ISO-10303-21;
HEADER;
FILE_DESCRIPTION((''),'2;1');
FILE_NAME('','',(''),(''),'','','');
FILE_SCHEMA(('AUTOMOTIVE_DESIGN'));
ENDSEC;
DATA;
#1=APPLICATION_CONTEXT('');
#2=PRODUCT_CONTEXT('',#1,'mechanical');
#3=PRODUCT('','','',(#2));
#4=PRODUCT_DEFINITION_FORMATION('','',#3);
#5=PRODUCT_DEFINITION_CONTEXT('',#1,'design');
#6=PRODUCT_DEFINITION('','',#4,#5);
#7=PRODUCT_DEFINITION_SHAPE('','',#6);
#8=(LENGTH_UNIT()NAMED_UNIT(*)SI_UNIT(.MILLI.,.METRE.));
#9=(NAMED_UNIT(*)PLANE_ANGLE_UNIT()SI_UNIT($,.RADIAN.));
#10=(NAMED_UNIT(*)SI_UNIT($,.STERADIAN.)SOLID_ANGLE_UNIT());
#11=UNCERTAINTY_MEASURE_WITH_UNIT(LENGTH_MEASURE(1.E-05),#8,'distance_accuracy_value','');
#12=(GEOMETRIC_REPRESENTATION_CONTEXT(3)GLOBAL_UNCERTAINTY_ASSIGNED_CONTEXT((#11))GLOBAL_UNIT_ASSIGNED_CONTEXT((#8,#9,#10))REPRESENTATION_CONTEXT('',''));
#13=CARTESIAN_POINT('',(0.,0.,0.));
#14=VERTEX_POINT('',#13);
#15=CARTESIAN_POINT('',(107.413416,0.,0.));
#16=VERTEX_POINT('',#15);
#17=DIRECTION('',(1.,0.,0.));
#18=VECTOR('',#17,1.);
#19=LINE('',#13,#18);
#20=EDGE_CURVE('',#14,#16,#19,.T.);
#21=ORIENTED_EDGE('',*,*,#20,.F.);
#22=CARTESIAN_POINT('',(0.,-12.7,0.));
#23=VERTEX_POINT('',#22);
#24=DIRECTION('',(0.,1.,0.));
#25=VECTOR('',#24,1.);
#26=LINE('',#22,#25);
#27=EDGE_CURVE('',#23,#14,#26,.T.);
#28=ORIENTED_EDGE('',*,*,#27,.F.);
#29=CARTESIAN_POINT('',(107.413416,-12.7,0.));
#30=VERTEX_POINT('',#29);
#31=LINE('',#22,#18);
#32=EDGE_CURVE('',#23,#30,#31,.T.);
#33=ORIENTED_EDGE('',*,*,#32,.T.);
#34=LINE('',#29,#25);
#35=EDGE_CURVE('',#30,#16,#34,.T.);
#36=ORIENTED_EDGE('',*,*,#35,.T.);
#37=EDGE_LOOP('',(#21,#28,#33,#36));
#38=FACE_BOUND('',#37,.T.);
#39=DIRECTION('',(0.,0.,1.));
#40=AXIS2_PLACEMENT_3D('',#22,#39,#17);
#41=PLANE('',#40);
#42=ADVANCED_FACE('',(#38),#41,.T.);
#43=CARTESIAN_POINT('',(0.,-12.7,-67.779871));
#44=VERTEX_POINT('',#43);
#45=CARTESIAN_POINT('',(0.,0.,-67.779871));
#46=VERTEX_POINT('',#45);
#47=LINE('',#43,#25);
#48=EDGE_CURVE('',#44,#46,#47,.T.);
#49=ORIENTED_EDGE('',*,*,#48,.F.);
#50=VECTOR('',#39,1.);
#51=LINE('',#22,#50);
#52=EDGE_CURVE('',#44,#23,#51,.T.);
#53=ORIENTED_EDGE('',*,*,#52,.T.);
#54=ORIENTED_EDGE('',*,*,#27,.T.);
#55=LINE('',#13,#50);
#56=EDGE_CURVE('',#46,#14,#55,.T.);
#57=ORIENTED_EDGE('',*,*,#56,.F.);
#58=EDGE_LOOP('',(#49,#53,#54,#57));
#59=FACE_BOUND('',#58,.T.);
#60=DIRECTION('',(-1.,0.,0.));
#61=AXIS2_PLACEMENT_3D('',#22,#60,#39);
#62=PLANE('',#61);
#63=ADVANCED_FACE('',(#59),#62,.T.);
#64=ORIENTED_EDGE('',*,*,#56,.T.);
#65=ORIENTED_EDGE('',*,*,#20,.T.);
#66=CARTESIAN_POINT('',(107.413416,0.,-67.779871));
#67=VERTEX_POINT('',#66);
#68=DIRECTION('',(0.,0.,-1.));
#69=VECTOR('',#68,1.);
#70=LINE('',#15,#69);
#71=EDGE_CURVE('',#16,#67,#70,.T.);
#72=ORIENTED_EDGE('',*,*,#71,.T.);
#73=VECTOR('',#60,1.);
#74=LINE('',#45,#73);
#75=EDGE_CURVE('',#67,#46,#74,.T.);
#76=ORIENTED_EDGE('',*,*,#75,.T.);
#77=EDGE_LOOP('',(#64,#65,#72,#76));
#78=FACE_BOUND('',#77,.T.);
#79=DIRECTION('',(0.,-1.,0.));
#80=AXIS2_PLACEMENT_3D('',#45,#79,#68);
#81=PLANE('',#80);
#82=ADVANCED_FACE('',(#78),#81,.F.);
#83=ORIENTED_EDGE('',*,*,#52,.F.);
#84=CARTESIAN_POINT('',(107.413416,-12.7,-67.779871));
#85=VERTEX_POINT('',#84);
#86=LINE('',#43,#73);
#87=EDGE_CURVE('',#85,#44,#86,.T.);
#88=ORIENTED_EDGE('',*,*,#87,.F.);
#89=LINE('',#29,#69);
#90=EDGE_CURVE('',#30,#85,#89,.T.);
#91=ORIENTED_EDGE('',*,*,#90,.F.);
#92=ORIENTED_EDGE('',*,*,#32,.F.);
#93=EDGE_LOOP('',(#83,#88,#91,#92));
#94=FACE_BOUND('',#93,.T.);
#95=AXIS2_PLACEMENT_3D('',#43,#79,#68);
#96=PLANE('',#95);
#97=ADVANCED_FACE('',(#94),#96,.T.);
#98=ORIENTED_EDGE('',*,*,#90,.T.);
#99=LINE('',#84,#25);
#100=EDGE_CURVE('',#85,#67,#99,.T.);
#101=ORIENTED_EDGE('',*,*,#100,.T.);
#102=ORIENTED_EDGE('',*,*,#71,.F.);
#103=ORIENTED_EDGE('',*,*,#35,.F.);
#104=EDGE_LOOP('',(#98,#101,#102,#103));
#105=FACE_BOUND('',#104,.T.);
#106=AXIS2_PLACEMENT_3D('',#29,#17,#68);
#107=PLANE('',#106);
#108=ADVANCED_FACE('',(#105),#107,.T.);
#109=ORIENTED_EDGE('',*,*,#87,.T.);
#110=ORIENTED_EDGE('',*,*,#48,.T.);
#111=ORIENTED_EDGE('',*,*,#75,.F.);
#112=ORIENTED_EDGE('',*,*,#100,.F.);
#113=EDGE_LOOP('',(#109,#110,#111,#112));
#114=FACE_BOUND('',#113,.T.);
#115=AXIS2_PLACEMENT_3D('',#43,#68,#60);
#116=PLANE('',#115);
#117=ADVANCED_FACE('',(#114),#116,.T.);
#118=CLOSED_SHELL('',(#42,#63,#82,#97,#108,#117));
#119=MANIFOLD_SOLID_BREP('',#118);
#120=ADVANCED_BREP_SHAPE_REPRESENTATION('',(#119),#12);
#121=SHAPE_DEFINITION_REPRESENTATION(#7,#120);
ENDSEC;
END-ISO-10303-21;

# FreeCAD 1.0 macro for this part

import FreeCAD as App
import Part
import Sketcher
Q = App.Units.Quantity

doc = App.newDocument("Part")
body = doc.addObject("PartDesign::Body", "Body")

# Sketch on XZ plane
sketch1 = body.newObject("Sketcher::SketchObject", "Sketch")
sketch1.AttachmentSupport = (doc.getObject("XZ_Plane"), [""])
sketch1.MapMode = "FlatFace"
sketch1.addGeometry([
    Part.LineSegment(App.Vector(0, -68, 0), App.Vector(0, 0, 0)),
    Part.LineSegment(App.Vector(0, 0, 0), App.Vector(107, 0, 0)),
    Part.LineSegment(App.Vector(107, 0, 0), App.Vector(107, -68, 0)),
    Part.LineSegment(App.Vector(107, -68, 0), App.Vector(0, -68, 0)),
], False)
sketch1.addConstraint([
    Sketcher.Constraint("Coincident", 0, 2, 1, 1),
    Sketcher.Constraint("Coincident", 1, 2, 2, 1),
    Sketcher.Constraint("Coincident", 2, 2, 3, 1),
    Sketcher.Constraint("Coincident", 3, 2, 0, 1),
    Sketcher.Constraint("Vertical", 0),
    Sketcher.Constraint("Horizontal", 1),
    Sketcher.Constraint("Vertical", 2),
    Sketcher.Constraint("Horizontal", 3),
    Sketcher.Constraint("Coincident", 0, 2, -1, 1),
    Sketcher.Constraint("DistanceY", 0, 1, 0, 2, 67.779871),
    Sketcher.Constraint("DistanceX", 1, 1, 1, 2, 107.413416),
])
pad1 = body.newObject("PartDesign::Pad", "Pad")
pad1.Profile = sketch1
pad1.Length = Q("0.5 in")

doc.recompute()
